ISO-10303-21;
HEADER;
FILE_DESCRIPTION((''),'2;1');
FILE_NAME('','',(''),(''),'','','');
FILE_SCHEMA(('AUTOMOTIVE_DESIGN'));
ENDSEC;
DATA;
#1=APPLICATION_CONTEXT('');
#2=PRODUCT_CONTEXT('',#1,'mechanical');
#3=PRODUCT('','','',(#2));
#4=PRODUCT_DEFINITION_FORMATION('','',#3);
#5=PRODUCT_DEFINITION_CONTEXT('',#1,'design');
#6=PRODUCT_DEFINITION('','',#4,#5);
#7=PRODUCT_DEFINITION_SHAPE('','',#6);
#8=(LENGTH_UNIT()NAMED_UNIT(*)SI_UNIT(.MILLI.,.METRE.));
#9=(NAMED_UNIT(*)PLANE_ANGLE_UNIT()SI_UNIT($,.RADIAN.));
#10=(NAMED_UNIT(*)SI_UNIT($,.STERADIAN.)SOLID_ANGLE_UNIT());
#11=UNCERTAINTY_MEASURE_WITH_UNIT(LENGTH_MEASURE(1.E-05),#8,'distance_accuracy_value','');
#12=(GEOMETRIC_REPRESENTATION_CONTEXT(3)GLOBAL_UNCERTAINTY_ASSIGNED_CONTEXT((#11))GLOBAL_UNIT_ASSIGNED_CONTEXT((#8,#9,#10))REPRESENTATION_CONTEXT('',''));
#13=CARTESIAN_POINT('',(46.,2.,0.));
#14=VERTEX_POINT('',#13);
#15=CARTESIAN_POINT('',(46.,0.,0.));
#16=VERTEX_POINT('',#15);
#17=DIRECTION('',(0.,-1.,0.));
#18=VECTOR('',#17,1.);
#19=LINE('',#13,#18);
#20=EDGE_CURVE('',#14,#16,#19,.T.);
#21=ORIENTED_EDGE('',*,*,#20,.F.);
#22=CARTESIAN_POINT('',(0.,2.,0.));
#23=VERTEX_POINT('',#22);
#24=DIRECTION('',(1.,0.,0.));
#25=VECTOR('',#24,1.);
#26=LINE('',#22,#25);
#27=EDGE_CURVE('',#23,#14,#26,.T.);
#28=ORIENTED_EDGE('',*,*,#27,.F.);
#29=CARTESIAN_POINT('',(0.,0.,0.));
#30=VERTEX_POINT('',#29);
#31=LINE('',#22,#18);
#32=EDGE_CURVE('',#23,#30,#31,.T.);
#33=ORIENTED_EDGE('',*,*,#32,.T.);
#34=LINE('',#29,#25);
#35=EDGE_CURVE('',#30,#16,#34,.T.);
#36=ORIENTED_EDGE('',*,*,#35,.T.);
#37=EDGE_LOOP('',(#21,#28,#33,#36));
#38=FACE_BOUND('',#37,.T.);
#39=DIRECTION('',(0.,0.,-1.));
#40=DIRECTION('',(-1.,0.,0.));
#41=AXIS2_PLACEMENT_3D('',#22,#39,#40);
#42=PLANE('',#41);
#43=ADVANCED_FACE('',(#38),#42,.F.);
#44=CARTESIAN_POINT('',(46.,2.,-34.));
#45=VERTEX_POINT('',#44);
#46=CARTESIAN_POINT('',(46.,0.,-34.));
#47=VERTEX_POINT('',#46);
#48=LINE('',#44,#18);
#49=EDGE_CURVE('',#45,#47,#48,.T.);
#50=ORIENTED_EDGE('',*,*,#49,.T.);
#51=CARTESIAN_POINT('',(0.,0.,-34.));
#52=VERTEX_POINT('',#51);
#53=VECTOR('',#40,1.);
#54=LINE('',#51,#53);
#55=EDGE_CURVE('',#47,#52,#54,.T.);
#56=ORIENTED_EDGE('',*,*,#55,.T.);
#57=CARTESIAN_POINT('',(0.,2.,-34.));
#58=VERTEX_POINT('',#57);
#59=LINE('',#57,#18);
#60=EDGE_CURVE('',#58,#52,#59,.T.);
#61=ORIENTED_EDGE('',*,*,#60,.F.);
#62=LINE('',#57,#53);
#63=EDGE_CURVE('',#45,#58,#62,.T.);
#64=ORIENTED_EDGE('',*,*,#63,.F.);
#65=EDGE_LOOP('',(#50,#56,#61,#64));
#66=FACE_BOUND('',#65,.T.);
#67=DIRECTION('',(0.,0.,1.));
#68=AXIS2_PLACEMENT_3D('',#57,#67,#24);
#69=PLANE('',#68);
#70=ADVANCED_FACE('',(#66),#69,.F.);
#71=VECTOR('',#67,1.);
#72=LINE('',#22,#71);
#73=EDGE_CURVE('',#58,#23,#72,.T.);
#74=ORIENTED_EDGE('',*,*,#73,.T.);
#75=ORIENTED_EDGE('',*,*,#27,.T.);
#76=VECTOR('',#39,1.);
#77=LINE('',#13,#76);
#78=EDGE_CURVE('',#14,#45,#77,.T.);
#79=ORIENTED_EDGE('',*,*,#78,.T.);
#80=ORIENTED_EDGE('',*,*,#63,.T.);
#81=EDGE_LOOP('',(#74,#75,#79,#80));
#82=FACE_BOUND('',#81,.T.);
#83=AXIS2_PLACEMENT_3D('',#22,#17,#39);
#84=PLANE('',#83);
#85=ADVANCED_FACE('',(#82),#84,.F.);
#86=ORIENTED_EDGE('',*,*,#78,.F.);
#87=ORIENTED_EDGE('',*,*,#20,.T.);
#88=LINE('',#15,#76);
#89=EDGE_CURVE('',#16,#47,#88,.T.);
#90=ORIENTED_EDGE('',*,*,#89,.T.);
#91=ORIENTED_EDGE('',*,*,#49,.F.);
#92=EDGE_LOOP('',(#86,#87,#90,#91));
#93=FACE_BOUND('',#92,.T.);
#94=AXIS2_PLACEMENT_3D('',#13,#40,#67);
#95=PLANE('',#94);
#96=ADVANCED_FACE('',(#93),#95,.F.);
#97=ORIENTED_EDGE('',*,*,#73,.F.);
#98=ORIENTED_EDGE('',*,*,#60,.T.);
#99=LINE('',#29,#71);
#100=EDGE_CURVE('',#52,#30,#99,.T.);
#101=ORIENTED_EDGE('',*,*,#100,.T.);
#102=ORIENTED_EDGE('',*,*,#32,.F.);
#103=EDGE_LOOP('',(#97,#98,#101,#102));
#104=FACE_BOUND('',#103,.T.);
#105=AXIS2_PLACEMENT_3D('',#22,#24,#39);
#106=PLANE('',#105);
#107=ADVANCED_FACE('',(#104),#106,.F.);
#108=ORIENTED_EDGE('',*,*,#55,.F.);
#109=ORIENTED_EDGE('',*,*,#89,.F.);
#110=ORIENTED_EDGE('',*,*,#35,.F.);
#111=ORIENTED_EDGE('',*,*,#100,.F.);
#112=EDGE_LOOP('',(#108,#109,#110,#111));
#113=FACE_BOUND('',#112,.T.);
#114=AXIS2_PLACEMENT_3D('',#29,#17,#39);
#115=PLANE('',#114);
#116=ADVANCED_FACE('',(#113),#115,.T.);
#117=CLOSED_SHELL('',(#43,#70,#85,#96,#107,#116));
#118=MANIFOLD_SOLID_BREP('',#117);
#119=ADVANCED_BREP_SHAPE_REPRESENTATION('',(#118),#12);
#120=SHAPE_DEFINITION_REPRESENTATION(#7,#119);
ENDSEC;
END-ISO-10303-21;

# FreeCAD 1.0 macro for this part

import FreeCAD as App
import Part
import Sketcher
Q = App.Units.Quantity

doc = App.newDocument("Part")
body = doc.addObject("PartDesign::Body", "Body")

sketch1 = body.newObject("Sketcher::SketchObject", "Sketch")
sketch1.AttachmentSupport = (doc.getObject("XZ_Plane"), [""])
sketch1.MapMode = "FlatFace"
sketch1.addGeometry(Part.LineSegment(App.Vector(0, -34, 0), App.Vector(0, 0, 0)), False)
sketch1.addGeometry(Part.LineSegment(App.Vector(0, 0, 0), App.Vector(46, 0, 0)), False)
sketch1.addGeometry(Part.LineSegment(App.Vector(46, 0, 0), App.Vector(46, -34, 0)), False)
sketch1.addGeometry(Part.LineSegment(App.Vector(46, -34, 0), App.Vector(0, -34, 0)), False)
sketch1.addConstraint(Sketcher.Constraint("Coincident", 0, 2, 1, 1))
sketch1.addConstraint(Sketcher.Constraint("Coincident", 1, 2, 2, 1))
sketch1.addConstraint(Sketcher.Constraint("Coincident", 2, 2, 3, 1))
sketch1.addConstraint(Sketcher.Constraint("Coincident", 3, 2, 0, 1))
sketch1.addConstraint(Sketcher.Constraint("Vertical", 0))
sketch1.addConstraint(Sketcher.Constraint("Horizontal", 1))
sketch1.addConstraint(Sketcher.Constraint("Vertical", 2))
sketch1.addConstraint(Sketcher.Constraint("Horizontal", 3))
sketch1.addConstraint(Sketcher.Constraint("Coincident", 0, 2, -1, 1))
sketch1.addConstraint(Sketcher.Constraint("DistanceX", 1, 1, 1, 2, Q("46 mm")))
sketch1.addConstraint(Sketcher.Constraint("DistanceY", 0, 1, 0, 2, Q("34 mm")))
pad1 = body.newObject("PartDesign::Pad", "Pad")
pad1.Profile = sketch1
pad1.Length = 2
pad1.Reversed = True

doc.recompute()
